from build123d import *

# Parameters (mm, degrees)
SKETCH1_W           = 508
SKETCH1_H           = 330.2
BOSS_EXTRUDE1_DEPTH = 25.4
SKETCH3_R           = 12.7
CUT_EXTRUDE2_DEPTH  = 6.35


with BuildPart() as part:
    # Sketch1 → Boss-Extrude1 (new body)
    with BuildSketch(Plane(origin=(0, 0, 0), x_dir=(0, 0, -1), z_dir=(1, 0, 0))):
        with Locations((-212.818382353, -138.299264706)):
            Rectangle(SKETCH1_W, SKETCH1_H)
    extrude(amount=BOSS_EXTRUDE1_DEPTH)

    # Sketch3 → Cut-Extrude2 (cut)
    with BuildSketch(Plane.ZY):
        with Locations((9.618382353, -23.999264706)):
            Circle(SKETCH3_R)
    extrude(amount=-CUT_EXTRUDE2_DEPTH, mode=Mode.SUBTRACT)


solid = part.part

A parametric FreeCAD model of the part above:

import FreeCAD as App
import Part
import Sketcher
from FreeCAD import Vector
Q = App.Units.Quantity

doc = App.newDocument("Part")
params = doc.addObject("Spreadsheet::Sheet", "Params")
for row, (alias, value) in enumerate([
    ("sketch1_width", "13 in"),
    ("sketch1_height", "20 in"),
    ("pad1_length", "1 in"),
    ("sketch2_diameter", "1 in"),
    ("pocket1_length", "0.25 in"),
], start=1):
    params.set(f"A{row}", alias)
    params.set(f"B{row}", "=" + value)
    params.setAlias(f"B{row}", alias)

body = doc.addObject("PartDesign::Body", "Body")

sketch1 = doc.addObject("Sketcher::SketchObject", "Sketch")
body.addObject(sketch1)
sketch1.AttachmentSupport = (doc.YZ_Plane, [""])
sketch1.MapMode = "FlatFace"
sketch1.addGeometry([
    Part.LineSegment(Vector(26.800735, 466.818382, 0), Vector(-303.399265, 466.818382, 0)),
    Part.LineSegment(Vector(-303.399265, 466.818382, 0), Vector(-303.399265, -41.181618, 0)),
    Part.LineSegment(Vector(-303.399265, -41.181618, 0), Vector(26.800735, -41.181618, 0)),
    Part.LineSegment(Vector(26.800735, -41.181618, 0), Vector(26.800735, 466.818382, 0)),
], False)
sketch1.addConstraint([
    Sketcher.Constraint("Coincident", 0, 2, 1, 1),
    Sketcher.Constraint("Coincident", 1, 2, 2, 1),
    Sketcher.Constraint("Coincident", 2, 2, 3, 1),
    Sketcher.Constraint("Coincident", 3, 2, 0, 1),
    Sketcher.Constraint("Horizontal", 0),
    Sketcher.Constraint("Vertical", 1),
    Sketcher.Constraint("Horizontal", 2),
    Sketcher.Constraint("Vertical", 3),
    Sketcher.Constraint("DistanceX", 0, 2, 0, 1, Q("13 in")),
    Sketcher.Constraint("DistanceY", 1, 2, 1, 1, Q("20 in")),
    Sketcher.Constraint("DistanceX", 0, 2, -1, 1, Q("303.399265 mm")),
    Sketcher.Constraint("DistanceY", -1, 1, 0, 2, Q("466.818382 mm")),
])
sketch1.setExpression("Constraints[8]", "Params.sketch1_width")
sketch1.setExpression("Constraints[9]", "Params.sketch1_height")
pad1 = doc.addObject("PartDesign::Pad", "Pad")
body.addObject(pad1)
pad1.Profile = sketch1
pad1.setExpression("Length", "Params.pad1_length")

sketch2 = doc.addObject("Sketcher::SketchObject", "Sketch001")
body.addObject(sketch2)
sketch2.AttachmentSupport = (doc.YZ_Plane, [""])
sketch2.MapMode = "FlatFace"
sketch2.addGeometry(Part.Circle(Vector(-23.999265, 9.618382, 0), Vector(0, 0, 1), 12.7), False)
sketch2.addConstraint([
    Sketcher.Constraint("Diameter", 0, Q("1 in")),
    Sketcher.Constraint("DistanceX", 0, 3, -1, 1, Q("23.999265 mm")),
    Sketcher.Constraint("DistanceY", -1, 1, 0, 3, Q("9.618382 mm")),
])
sketch2.setExpression("Constraints[0]", "Params.sketch2_diameter")
pocket1 = doc.addObject("PartDesign::Pocket", "Pocket")
body.addObject(pocket1)
pocket1.Profile = sketch2
pocket1.setExpression("Length", "Params.pocket1_length")
pocket1.Reversed = True

doc.recompute()
